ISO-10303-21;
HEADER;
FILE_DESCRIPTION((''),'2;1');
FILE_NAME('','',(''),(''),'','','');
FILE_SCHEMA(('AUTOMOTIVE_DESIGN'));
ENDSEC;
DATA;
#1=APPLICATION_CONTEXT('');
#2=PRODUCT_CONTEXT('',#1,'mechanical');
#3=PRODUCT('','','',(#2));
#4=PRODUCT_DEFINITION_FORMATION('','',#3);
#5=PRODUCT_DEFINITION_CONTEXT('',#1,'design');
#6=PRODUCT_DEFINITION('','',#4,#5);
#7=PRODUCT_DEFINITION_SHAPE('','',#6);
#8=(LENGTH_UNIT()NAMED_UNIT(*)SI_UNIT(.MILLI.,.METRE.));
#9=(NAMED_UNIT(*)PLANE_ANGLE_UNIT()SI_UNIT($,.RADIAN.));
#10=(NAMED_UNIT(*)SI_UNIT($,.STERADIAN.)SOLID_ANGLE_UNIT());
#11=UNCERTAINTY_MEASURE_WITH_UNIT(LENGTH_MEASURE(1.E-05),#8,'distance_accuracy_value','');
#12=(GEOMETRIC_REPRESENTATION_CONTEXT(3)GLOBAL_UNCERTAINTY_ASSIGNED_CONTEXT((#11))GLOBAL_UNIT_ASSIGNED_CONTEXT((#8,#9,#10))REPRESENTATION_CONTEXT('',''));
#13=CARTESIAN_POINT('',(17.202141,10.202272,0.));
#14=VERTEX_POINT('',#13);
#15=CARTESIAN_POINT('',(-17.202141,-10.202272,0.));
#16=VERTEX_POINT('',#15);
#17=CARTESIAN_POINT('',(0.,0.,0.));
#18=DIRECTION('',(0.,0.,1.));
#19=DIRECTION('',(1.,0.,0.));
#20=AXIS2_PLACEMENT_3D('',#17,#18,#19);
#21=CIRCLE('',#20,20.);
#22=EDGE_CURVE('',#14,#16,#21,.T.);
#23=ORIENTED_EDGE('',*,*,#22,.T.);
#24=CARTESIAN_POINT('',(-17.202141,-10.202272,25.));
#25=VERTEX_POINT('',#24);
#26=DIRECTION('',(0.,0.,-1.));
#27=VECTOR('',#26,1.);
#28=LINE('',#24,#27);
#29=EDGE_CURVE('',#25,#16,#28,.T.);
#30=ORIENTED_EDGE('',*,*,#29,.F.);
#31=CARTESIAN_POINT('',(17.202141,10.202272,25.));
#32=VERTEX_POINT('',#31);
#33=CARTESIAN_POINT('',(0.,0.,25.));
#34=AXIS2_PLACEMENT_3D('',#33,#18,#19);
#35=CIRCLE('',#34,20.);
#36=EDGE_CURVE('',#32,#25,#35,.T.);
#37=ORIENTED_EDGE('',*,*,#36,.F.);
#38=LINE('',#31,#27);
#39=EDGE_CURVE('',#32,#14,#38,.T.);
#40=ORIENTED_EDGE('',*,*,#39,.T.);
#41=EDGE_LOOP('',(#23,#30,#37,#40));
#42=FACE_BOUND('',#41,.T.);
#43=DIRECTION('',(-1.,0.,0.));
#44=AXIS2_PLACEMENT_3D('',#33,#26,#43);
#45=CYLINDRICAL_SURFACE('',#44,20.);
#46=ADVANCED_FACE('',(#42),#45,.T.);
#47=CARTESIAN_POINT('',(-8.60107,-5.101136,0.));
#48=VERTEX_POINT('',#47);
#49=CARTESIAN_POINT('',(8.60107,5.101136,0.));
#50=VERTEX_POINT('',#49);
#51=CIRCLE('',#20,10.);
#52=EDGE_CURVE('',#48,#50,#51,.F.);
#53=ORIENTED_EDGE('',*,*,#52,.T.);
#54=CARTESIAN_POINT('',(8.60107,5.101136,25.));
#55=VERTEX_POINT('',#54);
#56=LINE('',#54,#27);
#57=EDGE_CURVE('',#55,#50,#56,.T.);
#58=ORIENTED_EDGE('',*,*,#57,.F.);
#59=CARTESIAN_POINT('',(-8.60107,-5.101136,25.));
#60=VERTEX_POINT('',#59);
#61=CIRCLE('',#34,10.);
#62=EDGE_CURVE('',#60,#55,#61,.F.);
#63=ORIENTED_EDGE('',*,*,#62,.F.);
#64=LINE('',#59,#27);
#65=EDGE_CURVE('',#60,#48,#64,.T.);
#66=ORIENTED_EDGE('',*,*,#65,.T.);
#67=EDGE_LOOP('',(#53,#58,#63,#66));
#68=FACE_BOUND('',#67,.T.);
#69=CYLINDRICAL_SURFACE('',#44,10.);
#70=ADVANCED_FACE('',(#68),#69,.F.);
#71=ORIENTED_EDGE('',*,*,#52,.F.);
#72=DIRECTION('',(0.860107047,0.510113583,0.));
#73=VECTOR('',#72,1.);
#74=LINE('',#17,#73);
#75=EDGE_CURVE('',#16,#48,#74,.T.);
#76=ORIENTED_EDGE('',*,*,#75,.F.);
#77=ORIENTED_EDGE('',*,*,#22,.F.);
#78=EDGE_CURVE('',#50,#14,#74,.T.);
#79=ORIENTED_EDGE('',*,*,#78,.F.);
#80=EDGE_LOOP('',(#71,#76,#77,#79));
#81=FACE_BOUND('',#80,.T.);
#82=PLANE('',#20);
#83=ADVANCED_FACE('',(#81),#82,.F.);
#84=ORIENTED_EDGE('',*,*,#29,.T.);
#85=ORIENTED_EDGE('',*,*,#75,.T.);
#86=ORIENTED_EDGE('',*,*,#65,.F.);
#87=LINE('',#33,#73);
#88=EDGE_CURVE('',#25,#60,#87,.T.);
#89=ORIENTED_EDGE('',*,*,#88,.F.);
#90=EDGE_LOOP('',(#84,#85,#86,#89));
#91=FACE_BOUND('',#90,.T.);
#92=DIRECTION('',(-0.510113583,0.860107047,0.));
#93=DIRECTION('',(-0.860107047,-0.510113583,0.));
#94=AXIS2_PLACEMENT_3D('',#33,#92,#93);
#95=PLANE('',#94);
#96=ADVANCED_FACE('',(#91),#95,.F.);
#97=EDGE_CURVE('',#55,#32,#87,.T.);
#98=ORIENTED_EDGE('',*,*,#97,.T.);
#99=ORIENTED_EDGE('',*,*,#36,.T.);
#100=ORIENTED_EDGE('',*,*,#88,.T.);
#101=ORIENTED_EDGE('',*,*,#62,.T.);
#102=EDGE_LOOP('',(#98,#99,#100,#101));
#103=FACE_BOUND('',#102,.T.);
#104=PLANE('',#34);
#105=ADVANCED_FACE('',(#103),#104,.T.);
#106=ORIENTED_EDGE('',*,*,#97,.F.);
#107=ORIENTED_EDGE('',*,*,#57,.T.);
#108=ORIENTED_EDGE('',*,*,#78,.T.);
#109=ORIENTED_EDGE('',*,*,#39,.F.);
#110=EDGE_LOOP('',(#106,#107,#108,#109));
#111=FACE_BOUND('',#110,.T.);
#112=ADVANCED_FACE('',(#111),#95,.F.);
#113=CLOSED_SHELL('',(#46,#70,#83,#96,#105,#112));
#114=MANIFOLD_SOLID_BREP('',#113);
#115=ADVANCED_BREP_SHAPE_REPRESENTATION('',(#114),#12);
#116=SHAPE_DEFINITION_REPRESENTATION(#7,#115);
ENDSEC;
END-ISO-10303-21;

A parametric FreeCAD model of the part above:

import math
import FreeCAD as App
import Part
import Sketcher

doc = App.newDocument("Part")
body = doc.addObject("PartDesign::Body", "Body")

# Sketch on XY plane
sketch1 = doc.addObject("Sketcher::SketchObject", "Sketch")
body.addObject(sketch1)
sketch1.AttachmentSupport = (doc.XY_Plane, [""])
sketch1.MapMode = "FlatFace"
sketch1.addGeometry(Part.ArcOfCircle(Part.Circle(App.Vector(0, 0, 0), App.Vector(0, 0, 1), 20), math.radians(30.671396), math.radians(210.671396)), False)
sketch1.addGeometry(Part.LineSegment(App.Vector(-17.202141, -10.202272, 0), App.Vector(-8.60107, -5.101136, 0)), False)
sketch1.addGeometry(Part.ArcOfCircle(Part.Circle(App.Vector(0, 0, 0), App.Vector(0, 0, 1), 10), math.radians(30.671396), math.radians(210.671396)), False)
sketch1.addGeometry(Part.LineSegment(App.Vector(8.60107, 5.101136, 0), App.Vector(17.202141, 10.202272, 0)), False)
sketch1.addConstraint(Sketcher.Constraint("Coincident", 0, 2, 1, 1))
sketch1.addConstraint(Sketcher.Constraint("Coincident", 1, 2, 2, 2))
sketch1.addConstraint(Sketcher.Constraint("Coincident", 2, 1, 3, 1))
sketch1.addConstraint(Sketcher.Constraint("Coincident", 3, 2, 0, 1))
sketch1.addConstraint(Sketcher.Constraint("Coincident", 0, 3, -1, 1))
sketch1.addConstraint(Sketcher.Constraint("Coincident", 2, 3, -1, 1))
sketch1.addConstraint(Sketcher.Constraint("Parallel", 1, 3))
sketch1.addConstraint(Sketcher.Constraint("Radius", 0, 20.0))
sketch1.addConstraint(Sketcher.Constraint("Radius", 2, 10.0))
sketch1.addConstraint(Sketcher.Constraint("DistanceX", 0, 2, -1, 1, 17.202141))
sketch1.addConstraint(Sketcher.Constraint("DistanceX", 1, 2, -1, 1, 8.60107))
sketch1.addConstraint(Sketcher.Constraint("DistanceX", -1, 1, 2, 1, 8.60107))
pad1 = doc.addObject("PartDesign::Pad", "Pad")
body.addObject(pad1)
pad1.Profile = sketch1
pad1.Length = 25

doc.recompute()
